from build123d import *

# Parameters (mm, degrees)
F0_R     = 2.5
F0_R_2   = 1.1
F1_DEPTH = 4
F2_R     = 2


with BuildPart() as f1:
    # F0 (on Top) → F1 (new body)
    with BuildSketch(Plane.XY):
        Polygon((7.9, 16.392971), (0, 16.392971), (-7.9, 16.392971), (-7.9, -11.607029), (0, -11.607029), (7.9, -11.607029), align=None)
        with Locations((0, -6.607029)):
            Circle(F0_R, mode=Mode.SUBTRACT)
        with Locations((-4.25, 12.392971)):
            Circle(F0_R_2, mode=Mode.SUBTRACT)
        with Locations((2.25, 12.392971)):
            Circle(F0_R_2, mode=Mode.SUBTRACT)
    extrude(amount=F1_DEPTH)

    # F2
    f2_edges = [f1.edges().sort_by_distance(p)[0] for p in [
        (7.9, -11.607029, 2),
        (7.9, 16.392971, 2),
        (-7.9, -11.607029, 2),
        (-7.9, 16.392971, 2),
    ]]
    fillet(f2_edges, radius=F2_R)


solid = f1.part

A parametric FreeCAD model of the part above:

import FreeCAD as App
import Part
import Sketcher

V = App.Vector
Q = App.Units.Quantity


def edges_at(feature, points):
    """Names of the edges that pass closest to the given points."""
    edges = feature.Shape.Edges
    near = lambda p: min(range(len(edges)), key=lambda i: edges[i].distToShape(Part.Vertex(*p))[0])
    return sorted({f"Edge{near(p) + 1}" for p in points})


def add_polygon(sketch, points):
    """Adds a closed chain of lines whose ends are joined by coincident constraints."""
    first, n = sketch.GeometryCount, len(points)
    for a, b in zip(points, points[1:] + points[:1]):
        sketch.addGeometry(Part.LineSegment(App.Vector(*a, 0), App.Vector(*b, 0)), False)
    for i in range(n):
        sketch.addConstraint(Sketcher.Constraint("Coincident", first + i, 2, first + (i + 1) % n, 1))

doc = App.newDocument("Part")
body = doc.addObject("PartDesign::Body", "Body")

sketch1 = body.newObject("Sketcher::SketchObject", "Sketch")
sketch1.AttachmentSupport = (doc.getObject("XY_Plane"), [""])
sketch1.MapMode = "FlatFace"
add_polygon(sketch1, [(7.9, 16.4), (-7.9, 16.4), (-7.9, -11.6), (7.9, -11.6)])
sketch1.addGeometry(Part.Circle(V(0, -6.6, 0), V(0, 0, 1), 2.5), False)
sketch1.addGeometry(Part.Circle(V(-4.2, 12.4, 0), V(0, 0, 1), 1.1), False)
sketch1.addGeometry(Part.Circle(V(2.2, 12.4, 0), V(0, 0, 1), 1.1), False)
sketch1.addConstraint([
    Sketcher.Constraint("Horizontal", 0),
    Sketcher.Constraint("Vertical", 1),
    Sketcher.Constraint("Horizontal", 2),
    Sketcher.Constraint("Vertical", 3),
    Sketcher.Constraint("Equal", 5, 6),
    Sketcher.Constraint("PointOnObject", 4, 3, -2),
    Sketcher.Constraint("Horizontal", 5, 3, 6, 3),
    Sketcher.Constraint("Diameter", 4, Q("5 mm")),
    Sketcher.Constraint("Diameter", 5, Q("2.2 mm")),
    Sketcher.Constraint("DistanceY", 1, 2, 1, 1, Q("28 mm")),
    Sketcher.Constraint("DistanceX", 0, 2, 0, 1, Q("15.8 mm")),
    Sketcher.Constraint("DistanceY", 4, 3, 5, 3, Q("19 mm")),
    Sketcher.Constraint("DistanceY", 5, 3, 0, 2, Q("4 mm")),
    Sketcher.Constraint("DistanceX", 0, 2, -1, 1, Q("7.9 mm")),
    Sketcher.Constraint("DistanceX", 5, 3, 6, 3, Q("6.5 mm")),
    Sketcher.Constraint("DistanceX", 5, 3, -1, 1, Q("4.25 mm")),
    Sketcher.Constraint("DistanceY", 4, 3, -1, 1, Q("6.607029 mm")),
])
pad1 = body.newObject("PartDesign::Pad", "Pad")
pad1.Profile = sketch1
pad1.Length = 4
doc.recompute()

fillet = body.newObject("PartDesign::Fillet", "Fillet")
fillet.Base = (pad1, edges_at(pad1, [
    (7.9, -11.607, 2),
    (7.9, 16.393, 2),
    (-7.9, -11.607, 2),
    (-7.9, 16.393, 2),
]))
fillet.Radius = 2

doc.recompute()
